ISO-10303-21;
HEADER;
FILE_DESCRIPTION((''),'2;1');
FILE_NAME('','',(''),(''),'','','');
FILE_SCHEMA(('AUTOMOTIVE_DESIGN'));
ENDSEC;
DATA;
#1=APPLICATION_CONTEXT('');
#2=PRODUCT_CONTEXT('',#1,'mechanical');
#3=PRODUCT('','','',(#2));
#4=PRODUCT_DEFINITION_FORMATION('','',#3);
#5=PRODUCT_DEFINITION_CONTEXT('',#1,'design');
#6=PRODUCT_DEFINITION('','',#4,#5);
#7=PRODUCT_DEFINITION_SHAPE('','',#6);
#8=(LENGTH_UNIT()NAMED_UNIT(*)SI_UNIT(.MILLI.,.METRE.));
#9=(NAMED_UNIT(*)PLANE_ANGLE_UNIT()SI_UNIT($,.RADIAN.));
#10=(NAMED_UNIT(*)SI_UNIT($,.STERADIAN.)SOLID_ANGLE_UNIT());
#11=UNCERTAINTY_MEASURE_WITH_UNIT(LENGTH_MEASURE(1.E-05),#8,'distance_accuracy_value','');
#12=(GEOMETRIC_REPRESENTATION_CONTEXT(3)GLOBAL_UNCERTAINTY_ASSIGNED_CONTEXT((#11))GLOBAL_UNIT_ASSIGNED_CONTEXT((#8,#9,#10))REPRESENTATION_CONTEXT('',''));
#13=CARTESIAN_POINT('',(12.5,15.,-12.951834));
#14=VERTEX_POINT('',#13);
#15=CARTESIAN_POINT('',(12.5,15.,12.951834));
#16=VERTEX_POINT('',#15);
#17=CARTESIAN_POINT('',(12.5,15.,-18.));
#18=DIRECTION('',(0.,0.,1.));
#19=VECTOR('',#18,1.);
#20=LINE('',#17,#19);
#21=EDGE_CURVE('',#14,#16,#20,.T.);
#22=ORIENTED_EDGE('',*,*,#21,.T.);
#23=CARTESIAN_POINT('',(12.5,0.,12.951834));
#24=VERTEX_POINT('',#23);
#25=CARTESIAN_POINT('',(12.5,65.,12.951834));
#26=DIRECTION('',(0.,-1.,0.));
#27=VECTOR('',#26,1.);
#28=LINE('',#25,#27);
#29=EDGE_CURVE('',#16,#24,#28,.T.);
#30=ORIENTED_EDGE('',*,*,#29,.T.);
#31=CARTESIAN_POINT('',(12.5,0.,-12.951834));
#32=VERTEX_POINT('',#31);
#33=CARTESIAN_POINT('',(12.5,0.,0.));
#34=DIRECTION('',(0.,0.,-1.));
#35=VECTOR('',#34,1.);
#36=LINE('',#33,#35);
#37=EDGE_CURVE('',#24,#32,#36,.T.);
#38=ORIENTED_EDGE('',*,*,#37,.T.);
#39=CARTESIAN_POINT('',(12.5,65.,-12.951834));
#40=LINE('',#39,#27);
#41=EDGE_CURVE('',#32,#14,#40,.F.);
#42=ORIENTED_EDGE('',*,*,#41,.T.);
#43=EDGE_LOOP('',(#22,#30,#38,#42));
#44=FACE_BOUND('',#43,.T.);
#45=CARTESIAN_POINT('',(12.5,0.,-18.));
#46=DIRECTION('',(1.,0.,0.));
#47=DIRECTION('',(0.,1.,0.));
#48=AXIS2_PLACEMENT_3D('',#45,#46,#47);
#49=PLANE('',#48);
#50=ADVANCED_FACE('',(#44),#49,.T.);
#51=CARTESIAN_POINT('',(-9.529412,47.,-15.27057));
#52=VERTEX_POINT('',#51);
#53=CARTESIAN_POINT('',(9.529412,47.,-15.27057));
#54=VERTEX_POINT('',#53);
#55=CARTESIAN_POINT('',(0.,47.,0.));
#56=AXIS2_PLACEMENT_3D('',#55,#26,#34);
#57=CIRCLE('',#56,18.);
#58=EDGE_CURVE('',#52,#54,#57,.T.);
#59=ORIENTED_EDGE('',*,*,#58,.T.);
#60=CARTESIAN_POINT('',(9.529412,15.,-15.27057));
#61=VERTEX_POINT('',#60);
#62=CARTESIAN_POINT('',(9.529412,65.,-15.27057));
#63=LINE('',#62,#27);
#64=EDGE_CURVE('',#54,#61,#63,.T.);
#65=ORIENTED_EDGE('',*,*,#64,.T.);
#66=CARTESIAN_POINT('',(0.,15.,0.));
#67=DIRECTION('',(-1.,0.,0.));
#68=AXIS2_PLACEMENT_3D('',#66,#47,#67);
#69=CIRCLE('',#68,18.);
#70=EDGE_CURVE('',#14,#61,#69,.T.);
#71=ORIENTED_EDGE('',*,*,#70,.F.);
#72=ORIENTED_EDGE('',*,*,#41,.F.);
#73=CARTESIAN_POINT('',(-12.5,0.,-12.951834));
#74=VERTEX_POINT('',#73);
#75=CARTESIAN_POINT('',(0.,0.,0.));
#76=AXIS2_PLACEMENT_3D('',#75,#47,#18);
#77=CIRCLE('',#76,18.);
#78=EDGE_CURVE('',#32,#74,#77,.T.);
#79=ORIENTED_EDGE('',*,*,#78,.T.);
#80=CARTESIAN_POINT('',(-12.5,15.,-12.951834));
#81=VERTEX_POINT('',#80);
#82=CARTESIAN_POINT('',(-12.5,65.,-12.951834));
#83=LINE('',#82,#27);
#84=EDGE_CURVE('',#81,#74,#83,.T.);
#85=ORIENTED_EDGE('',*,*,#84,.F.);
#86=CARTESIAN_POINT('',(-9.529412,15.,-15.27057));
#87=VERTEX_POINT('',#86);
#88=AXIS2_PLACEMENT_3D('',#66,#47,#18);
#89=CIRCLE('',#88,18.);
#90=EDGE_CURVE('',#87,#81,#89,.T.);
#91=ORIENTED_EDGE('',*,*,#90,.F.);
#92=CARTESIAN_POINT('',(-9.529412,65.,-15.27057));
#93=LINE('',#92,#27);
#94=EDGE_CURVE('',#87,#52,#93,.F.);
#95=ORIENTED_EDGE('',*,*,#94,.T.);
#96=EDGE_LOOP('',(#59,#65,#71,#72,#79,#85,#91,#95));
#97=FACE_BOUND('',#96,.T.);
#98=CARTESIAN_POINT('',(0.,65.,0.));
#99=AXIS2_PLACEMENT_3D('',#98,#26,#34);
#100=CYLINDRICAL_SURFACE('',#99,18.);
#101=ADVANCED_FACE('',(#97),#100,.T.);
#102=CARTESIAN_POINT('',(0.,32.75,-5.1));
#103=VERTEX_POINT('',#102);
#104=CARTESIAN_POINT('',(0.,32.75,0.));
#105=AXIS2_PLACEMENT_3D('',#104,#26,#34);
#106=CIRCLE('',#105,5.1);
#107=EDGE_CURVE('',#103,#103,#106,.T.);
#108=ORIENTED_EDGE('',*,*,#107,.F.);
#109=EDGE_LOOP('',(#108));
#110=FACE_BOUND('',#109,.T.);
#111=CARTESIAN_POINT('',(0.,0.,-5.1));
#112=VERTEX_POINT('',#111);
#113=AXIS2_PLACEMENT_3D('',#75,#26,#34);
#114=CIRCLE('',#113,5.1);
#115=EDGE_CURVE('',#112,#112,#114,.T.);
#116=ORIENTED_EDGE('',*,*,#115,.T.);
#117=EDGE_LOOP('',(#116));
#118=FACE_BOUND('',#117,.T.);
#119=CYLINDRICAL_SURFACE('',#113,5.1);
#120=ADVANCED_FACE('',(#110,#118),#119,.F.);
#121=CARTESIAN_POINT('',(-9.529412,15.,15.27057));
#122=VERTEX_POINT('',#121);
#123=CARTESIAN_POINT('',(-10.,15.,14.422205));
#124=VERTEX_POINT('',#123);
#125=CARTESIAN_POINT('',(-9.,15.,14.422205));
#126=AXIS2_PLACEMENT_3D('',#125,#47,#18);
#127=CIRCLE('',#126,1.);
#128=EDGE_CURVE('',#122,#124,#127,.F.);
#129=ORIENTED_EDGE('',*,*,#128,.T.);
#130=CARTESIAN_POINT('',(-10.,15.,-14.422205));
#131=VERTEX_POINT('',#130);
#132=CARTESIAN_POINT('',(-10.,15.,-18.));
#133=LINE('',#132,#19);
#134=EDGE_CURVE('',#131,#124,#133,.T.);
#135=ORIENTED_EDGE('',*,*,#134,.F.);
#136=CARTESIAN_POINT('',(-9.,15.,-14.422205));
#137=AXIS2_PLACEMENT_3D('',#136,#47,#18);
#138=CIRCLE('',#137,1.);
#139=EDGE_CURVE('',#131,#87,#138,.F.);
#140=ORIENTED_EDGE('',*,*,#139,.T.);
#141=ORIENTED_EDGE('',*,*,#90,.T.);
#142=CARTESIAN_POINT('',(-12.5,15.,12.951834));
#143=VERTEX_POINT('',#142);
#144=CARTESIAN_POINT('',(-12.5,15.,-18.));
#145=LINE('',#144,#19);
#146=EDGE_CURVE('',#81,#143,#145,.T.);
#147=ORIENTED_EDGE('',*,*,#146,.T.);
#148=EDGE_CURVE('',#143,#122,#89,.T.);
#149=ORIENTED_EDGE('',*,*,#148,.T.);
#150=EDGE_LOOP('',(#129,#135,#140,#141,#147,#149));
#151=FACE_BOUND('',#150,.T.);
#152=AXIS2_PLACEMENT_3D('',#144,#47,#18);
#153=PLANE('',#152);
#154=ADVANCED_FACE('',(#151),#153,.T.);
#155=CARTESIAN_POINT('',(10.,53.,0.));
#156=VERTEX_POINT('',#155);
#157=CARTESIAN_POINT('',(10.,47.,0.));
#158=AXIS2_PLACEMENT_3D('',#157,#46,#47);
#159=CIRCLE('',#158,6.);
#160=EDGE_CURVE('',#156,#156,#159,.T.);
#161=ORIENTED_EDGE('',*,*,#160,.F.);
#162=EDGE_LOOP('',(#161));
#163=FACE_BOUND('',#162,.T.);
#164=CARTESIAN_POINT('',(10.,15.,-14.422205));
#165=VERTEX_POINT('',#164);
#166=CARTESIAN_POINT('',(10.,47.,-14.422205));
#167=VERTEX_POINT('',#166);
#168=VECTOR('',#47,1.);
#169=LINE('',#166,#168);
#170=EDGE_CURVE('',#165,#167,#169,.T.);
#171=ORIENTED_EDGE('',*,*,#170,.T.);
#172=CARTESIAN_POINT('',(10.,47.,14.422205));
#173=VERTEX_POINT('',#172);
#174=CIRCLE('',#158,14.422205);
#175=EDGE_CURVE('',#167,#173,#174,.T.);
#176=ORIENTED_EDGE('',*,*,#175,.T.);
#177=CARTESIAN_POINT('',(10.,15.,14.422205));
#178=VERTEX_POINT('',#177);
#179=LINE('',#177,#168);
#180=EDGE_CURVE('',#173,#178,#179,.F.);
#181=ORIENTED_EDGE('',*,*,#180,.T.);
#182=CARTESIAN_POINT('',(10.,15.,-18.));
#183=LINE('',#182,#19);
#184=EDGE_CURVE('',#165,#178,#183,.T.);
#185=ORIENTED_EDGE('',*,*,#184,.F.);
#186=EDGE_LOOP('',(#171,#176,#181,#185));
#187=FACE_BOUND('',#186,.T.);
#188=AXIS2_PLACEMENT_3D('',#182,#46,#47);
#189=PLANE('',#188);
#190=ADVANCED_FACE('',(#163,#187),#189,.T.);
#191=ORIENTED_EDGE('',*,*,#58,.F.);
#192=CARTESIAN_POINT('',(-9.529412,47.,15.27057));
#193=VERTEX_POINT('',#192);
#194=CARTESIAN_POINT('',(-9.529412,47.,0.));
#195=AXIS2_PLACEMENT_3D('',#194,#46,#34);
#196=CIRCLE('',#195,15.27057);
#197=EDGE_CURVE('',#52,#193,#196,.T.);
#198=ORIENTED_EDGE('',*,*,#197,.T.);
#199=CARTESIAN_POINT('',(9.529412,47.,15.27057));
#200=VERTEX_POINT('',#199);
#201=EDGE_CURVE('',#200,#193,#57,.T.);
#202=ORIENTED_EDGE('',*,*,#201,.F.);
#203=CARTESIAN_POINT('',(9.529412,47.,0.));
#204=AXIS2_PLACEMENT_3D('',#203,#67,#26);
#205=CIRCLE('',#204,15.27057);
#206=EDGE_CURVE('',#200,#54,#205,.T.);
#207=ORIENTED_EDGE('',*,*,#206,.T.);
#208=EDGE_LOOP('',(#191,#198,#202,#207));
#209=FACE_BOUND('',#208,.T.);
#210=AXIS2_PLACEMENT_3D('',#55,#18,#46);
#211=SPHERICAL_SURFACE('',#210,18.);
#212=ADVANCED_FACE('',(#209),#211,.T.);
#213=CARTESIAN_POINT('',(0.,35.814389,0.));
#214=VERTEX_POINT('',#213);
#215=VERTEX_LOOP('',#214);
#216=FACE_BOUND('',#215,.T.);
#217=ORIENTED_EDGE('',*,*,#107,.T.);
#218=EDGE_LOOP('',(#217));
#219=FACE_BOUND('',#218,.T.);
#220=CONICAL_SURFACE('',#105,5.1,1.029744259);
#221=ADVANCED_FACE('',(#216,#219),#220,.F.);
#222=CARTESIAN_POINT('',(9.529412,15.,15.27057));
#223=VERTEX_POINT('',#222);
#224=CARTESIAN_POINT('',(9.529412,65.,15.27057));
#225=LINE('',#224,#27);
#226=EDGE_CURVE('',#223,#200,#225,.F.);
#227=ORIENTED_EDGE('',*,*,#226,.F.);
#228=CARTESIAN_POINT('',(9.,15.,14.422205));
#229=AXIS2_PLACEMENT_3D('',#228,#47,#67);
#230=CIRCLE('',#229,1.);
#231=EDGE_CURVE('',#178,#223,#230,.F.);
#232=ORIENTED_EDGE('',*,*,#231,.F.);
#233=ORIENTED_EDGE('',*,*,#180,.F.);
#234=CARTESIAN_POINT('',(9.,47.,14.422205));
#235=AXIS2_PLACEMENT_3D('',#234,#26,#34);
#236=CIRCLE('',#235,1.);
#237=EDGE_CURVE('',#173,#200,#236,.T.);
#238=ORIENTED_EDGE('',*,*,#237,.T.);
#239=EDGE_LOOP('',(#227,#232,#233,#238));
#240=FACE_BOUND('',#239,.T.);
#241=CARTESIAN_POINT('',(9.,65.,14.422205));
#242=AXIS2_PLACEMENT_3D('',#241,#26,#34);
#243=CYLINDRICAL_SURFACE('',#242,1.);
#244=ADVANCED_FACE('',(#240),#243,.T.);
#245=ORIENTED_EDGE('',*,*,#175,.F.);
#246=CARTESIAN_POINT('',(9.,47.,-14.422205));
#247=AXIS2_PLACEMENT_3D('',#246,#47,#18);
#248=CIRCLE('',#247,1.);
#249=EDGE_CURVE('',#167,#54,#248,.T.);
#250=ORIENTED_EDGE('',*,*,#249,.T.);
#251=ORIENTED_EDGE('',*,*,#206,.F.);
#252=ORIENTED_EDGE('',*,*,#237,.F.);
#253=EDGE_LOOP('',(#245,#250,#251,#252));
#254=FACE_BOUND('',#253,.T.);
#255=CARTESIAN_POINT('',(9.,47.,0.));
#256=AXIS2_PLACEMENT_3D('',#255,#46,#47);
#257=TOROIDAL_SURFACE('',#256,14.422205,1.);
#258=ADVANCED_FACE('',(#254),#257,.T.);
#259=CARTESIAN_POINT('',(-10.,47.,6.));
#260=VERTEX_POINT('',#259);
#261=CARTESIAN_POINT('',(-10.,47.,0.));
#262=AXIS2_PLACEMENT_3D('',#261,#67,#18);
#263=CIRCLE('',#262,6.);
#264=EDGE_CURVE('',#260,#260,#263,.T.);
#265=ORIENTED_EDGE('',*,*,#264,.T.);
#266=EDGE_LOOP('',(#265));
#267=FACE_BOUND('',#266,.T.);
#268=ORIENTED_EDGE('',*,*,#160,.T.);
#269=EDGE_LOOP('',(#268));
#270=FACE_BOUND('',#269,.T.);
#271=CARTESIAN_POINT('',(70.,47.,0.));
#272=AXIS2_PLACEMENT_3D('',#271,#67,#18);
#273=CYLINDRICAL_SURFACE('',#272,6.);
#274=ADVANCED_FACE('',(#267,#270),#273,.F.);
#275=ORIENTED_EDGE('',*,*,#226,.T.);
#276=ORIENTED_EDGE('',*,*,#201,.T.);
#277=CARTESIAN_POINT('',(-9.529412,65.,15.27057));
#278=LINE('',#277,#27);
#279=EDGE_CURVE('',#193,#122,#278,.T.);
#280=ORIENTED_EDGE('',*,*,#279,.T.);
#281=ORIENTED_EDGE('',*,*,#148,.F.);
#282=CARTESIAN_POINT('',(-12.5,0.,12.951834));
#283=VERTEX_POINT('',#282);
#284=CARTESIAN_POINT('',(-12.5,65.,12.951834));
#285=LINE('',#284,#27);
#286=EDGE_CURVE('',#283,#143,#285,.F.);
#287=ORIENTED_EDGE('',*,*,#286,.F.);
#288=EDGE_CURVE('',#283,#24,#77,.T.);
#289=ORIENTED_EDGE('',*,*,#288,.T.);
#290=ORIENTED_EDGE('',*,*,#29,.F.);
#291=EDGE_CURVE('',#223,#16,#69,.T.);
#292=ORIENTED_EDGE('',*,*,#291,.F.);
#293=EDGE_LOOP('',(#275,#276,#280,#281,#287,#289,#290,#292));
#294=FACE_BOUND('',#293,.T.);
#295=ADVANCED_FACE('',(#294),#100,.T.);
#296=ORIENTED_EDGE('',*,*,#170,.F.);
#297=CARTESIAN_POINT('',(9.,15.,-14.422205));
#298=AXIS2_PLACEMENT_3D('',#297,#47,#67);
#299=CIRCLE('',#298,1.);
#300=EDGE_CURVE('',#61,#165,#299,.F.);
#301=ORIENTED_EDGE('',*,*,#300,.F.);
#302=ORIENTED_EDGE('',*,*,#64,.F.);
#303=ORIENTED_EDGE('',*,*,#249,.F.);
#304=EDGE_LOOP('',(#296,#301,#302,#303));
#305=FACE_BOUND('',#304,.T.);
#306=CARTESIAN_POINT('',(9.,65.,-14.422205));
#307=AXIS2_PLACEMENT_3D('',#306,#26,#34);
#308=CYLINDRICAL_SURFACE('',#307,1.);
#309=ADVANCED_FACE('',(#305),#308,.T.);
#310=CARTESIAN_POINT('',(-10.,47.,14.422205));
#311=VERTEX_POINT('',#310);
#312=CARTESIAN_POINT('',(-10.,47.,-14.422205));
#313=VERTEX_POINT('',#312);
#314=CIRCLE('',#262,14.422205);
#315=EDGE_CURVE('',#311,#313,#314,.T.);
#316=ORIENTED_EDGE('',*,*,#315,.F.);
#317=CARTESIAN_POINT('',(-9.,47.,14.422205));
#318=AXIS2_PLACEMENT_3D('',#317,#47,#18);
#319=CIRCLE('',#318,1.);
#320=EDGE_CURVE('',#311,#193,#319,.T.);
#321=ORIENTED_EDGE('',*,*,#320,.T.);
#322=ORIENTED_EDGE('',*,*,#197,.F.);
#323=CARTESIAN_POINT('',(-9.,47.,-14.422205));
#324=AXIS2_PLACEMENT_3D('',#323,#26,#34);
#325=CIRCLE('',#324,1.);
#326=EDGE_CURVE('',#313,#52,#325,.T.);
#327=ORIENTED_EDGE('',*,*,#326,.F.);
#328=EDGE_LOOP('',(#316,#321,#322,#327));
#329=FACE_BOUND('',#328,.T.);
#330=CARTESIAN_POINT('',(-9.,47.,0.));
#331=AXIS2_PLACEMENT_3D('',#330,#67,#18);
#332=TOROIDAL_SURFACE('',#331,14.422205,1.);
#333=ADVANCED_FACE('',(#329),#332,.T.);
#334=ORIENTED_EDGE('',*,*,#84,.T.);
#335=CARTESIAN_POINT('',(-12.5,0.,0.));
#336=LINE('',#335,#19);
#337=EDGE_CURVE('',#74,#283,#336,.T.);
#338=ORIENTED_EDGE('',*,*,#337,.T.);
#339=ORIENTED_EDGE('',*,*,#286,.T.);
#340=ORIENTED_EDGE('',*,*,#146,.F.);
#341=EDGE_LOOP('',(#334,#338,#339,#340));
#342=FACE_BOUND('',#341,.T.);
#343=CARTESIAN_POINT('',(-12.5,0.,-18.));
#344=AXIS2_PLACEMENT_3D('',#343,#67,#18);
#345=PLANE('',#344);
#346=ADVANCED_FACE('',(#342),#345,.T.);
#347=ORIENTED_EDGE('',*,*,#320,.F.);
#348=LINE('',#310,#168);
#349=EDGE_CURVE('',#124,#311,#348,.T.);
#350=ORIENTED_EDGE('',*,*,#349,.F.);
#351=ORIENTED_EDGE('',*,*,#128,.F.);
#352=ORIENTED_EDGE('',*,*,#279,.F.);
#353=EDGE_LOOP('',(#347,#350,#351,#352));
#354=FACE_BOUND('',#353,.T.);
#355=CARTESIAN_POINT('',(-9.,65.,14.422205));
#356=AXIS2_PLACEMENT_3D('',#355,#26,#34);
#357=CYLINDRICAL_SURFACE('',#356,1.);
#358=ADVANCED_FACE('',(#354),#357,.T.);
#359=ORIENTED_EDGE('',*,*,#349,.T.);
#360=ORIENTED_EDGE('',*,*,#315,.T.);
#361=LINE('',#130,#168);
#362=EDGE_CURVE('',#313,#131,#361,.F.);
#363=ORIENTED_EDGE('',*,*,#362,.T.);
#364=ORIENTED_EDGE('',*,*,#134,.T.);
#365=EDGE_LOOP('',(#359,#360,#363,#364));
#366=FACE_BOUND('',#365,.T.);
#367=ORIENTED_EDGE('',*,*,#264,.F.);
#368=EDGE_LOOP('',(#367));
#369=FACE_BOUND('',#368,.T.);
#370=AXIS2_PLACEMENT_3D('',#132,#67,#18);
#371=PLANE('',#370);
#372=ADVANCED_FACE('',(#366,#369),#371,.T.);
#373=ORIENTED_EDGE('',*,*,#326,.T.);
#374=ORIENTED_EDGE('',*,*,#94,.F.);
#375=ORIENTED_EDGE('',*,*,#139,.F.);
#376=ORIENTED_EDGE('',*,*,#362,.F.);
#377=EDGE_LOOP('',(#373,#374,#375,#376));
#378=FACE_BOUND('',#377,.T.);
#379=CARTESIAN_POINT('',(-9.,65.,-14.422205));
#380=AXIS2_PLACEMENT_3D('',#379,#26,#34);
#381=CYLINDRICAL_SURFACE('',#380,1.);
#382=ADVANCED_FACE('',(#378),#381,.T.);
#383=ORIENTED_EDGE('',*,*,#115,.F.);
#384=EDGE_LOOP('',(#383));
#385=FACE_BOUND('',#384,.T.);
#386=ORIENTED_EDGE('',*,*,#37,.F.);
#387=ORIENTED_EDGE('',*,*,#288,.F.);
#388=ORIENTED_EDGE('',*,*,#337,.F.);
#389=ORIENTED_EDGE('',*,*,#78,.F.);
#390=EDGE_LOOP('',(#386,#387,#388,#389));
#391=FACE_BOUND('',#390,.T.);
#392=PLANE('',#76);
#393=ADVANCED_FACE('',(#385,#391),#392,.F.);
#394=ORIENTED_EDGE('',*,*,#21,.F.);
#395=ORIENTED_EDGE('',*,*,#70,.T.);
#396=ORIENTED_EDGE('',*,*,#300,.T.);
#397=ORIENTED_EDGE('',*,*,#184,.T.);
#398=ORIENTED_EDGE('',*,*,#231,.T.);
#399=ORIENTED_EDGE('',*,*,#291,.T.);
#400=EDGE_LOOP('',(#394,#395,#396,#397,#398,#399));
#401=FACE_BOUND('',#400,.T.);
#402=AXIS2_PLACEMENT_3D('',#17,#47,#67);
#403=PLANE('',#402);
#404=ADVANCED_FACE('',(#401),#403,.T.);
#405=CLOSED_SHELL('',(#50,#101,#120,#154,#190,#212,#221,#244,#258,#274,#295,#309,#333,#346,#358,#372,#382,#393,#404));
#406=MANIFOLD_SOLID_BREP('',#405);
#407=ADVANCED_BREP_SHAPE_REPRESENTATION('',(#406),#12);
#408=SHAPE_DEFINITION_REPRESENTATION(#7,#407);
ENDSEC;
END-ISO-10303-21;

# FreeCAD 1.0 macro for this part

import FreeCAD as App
import Part
import Sketcher
from FreeCAD import Vector
Q = App.Units.Quantity


def edges_at(feature, points):
    """Names of the edges that pass closest to the given points."""
    edges = feature.Shape.Edges
    near = lambda p: min(range(len(edges)), key=lambda i: edges[i].distToShape(Part.Vertex(*p))[0])
    return sorted({f"Edge{near(p) + 1}" for p in points})

doc = App.newDocument("Part")
body = doc.addObject("PartDesign::Body", "Body")

# Sketch on XZ plane
sketch1 = body.newObject("Sketcher::SketchObject", "Sketch")
sketch1.AttachmentSupport = (doc.getObject("XZ_Plane"), [""])
sketch1.MapMode = "FlatFace"
sketch1.addGeometry(Part.Circle(Vector(0, 0, 0), Vector(0, 0, 1), 18), False)
sketch1.addConstraint(Sketcher.Constraint("Coincident", 0, 3, -1, 1))
sketch1.addConstraint(Sketcher.Constraint("Diameter", 0, Q("36 mm")))
pad1 = body.newObject("PartDesign::Pad", "Pad")
pad1.Profile = sketch1
pad1.Length = 65
pad1.Reversed = True
doc.recompute()

fillet = body.newObject("PartDesign::Fillet", "Fillet")
fillet.Base = (pad1, edges_at(pad1, [(0, 65, -18)]))
fillet.Radius = 18

# Sketch on XY plane
sketch2 = body.newObject("Sketcher::SketchObject", "Sketch001")
sketch2.AttachmentSupport = (doc.getObject("XY_Plane"), [""])
sketch2.MapMode = "FlatFace"
sketch2.addGeometry(Part.LineSegment(Vector(-27.3, 74.3, 0), Vector(-27.3, -9.3, 0)), False)
sketch2.addGeometry(Part.LineSegment(Vector(-27.3, -9.3, 0), Vector(27.3, -9.3, 0)), False)
sketch2.addGeometry(Part.LineSegment(Vector(27.3, -9.3, 0), Vector(27.3, 74.3, 0)), False)
sketch2.addGeometry(Part.LineSegment(Vector(27.3, 74.3, 0), Vector(10, 74.3, 0)), False)
sketch2.addGeometry(Part.LineSegment(Vector(10, 74.3, 0), Vector(10, 15, 0)), False)
sketch2.addGeometry(Part.LineSegment(Vector(10, 15, 0), Vector(12.5, 15, 0)), False)
sketch2.addGeometry(Part.LineSegment(Vector(12.5, 15, 0), Vector(12.5, 0, 0)), False)
sketch2.addGeometry(Part.LineSegment(Vector(12.5, 0, 0), Vector(-12.5, 0, 0)), False)
sketch2.addGeometry(Part.LineSegment(Vector(-12.5, 0, 0), Vector(-12.5, 15, 0)), False)
sketch2.addGeometry(Part.LineSegment(Vector(-12.5, 15, 0), Vector(-10, 15, 0)), False)
sketch2.addGeometry(Part.LineSegment(Vector(-10, 15, 0), Vector(-10, 74.3, 0)), False)
sketch2.addGeometry(Part.LineSegment(Vector(-10, 74.3, 0), Vector(-27.3, 74.3, 0)), False)
sketch2.addConstraint(Sketcher.Constraint("Coincident", 0, 2, 1, 1))
sketch2.addConstraint(Sketcher.Constraint("Coincident", 1, 2, 2, 1))
sketch2.addConstraint(Sketcher.Constraint("Coincident", 2, 2, 3, 1))
sketch2.addConstraint(Sketcher.Constraint("Coincident", 3, 2, 4, 1))
sketch2.addConstraint(Sketcher.Constraint("Coincident", 4, 2, 5, 1))
sketch2.addConstraint(Sketcher.Constraint("Coincident", 5, 2, 6, 1))
sketch2.addConstraint(Sketcher.Constraint("Coincident", 6, 2, 7, 1))
sketch2.addConstraint(Sketcher.Constraint("Coincident", 7, 2, 8, 1))
sketch2.addConstraint(Sketcher.Constraint("Coincident", 8, 2, 9, 1))
sketch2.addConstraint(Sketcher.Constraint("Coincident", 9, 2, 10, 1))
sketch2.addConstraint(Sketcher.Constraint("Coincident", 10, 2, 11, 1))
sketch2.addConstraint(Sketcher.Constraint("Coincident", 11, 2, 0, 1))
sketch2.addConstraint(Sketcher.Constraint("Vertical", 0))
sketch2.addConstraint(Sketcher.Constraint("Horizontal", 1))
sketch2.addConstraint(Sketcher.Constraint("Vertical", 2))
sketch2.addConstraint(Sketcher.Constraint("Horizontal", 3))
sketch2.addConstraint(Sketcher.Constraint("Vertical", 4))
sketch2.addConstraint(Sketcher.Constraint("Horizontal", 5))
sketch2.addConstraint(Sketcher.Constraint("Vertical", 6))
sketch2.addConstraint(Sketcher.Constraint("Horizontal", 7))
sketch2.addConstraint(Sketcher.Constraint("Vertical", 8))
sketch2.addConstraint(Sketcher.Constraint("Horizontal", 9))
sketch2.addConstraint(Sketcher.Constraint("Vertical", 10))
sketch2.addConstraint(Sketcher.Constraint("Horizontal", 11))
sketch2.addConstraint(Sketcher.Constraint("Symmetric", 6, 2, 7, 2, -1, 1))
sketch2.addConstraint(Sketcher.Constraint("Symmetric", 4, 2, 9, 2, -2))
sketch2.addConstraint(Sketcher.Constraint("Symmetric", 2, 2, 11, 2, -2))
sketch2.addConstraint(Sketcher.Constraint("DistanceX", 7, 2, 7, 1, Q("25 mm")))
sketch2.addConstraint(Sketcher.Constraint("DistanceY", 6, 2, 6, 1, Q("15 mm")))
sketch2.addConstraint(Sketcher.Constraint("DistanceX", 5, 1, 5, 2, Q("2.5 mm")))
sketch2.addConstraint(Sketcher.Constraint("DistanceX", 1, 1, 1, 2, Q("54.514 mm")))
sketch2.addConstraint(Sketcher.Constraint("DistanceY", 0, 2, 0, 1, Q("83.514 mm")))
sketch2.addConstraint(Sketcher.Constraint("DistanceY", 4, 2, 4, 1, Q("59.257 mm")))
pocket1 = body.newObject("PartDesign::Pocket", "Pocket")
pocket1.Profile = sketch2
pocket1.Type = "ThroughAll"
pocket1.Midplane = True

# Sketch on YZ plane
sketch3 = body.newObject("Sketcher::SketchObject", "Sketch002")
sketch3.AttachmentSupport = (doc.getObject("YZ_Plane"), [""])
sketch3.MapMode = "FlatFace"
sketch3.AttachmentOffset = App.Placement(Vector(0, 0, -10), App.Rotation())
sketch3.addGeometry(Part.Circle(Vector(47, 0, 0), Vector(0, 0, 1), 6), False)
sketch3.addConstraint(Sketcher.Constraint("PointOnObject", 0, 3, -1))
sketch3.addConstraint(Sketcher.Constraint("Diameter", 0, Q("12 mm")))
sketch3.addConstraint(Sketcher.Constraint("DistanceX", -1, 1, 0, 3, Q("47 mm")))
pocket2 = body.newObject("PartDesign::Pocket", "Pocket001")
pocket2.Profile = sketch3
pocket2.Length = 80
pocket2.Reversed = True

# Sketch on XZ plane
sketch4 = body.newObject("Sketcher::SketchObject", "Sketch003")
sketch4.AttachmentSupport = (doc.getObject("XZ_Plane"), [""])
sketch4.MapMode = "FlatFace"
sketch4.addGeometry(Part.Circle(Vector(0, 0, 0), Vector(0, 0, 1), 5), False)
sketch4.addConstraint(Sketcher.Constraint("Coincident", 0, 3, -1, 1))
sketch4.addConstraint(Sketcher.Constraint("Diameter", 0, Q("10.2 mm")))
doc.recompute()
hole = body.newObject("PartDesign::Hole", "Hole")
hole.Profile = sketch4
hole.ThreadType = "None"
hole.Diameter = 10.2
hole.DepthType = "Dimension"
hole.Depth = 32.75
hole.DrillPoint = "Angled"
hole.DrillPointAngle = 118
doc.recompute()

fillet2 = body.newObject("PartDesign::Fillet", "Fillet001")
fillet2.Base = (hole, edges_at(hole, [
    (-10, 31, -14.967),
    (-10, 31, 14.967),
    (10, 31, 14.967),
    (10, 31, -14.967),
    (10, 61.967, 0),
    (-10, 61.967, 0),
]))
fillet2.Radius = 1

doc.recompute()
